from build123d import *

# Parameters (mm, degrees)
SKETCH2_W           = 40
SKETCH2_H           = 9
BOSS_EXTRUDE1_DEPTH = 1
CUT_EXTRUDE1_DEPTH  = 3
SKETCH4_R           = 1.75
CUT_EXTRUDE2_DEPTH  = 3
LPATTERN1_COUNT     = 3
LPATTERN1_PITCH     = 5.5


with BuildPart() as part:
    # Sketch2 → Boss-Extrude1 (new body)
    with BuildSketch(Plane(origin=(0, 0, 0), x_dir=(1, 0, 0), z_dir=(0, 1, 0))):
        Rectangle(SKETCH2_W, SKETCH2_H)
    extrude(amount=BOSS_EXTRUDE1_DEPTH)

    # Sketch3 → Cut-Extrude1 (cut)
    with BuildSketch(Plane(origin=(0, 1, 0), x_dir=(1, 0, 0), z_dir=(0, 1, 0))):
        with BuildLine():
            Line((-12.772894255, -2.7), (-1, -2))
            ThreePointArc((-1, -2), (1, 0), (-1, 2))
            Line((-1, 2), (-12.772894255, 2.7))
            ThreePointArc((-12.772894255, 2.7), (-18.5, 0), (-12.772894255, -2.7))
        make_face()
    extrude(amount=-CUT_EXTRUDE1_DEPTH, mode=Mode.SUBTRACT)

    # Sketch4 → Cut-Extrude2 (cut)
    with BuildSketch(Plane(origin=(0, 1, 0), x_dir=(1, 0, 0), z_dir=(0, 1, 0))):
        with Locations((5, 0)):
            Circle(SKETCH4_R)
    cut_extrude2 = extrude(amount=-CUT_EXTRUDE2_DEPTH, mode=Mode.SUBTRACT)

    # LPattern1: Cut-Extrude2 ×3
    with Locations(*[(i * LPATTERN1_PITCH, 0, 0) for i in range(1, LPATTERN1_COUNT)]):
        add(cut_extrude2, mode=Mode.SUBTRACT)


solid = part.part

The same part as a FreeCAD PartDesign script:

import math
import FreeCAD as App
import Part
import Sketcher
from FreeCAD import Vector


def add_polygon(sketch, points):
    """Adds a closed chain of lines whose ends are joined by coincident constraints."""
    first, n = sketch.GeometryCount, len(points)
    for a, b in zip(points, points[1:] + points[:1]):
        sketch.addGeometry(Part.LineSegment(App.Vector(*a, 0), App.Vector(*b, 0)), False)
    for i in range(n):
        sketch.addConstraint(Sketcher.Constraint("Coincident", first + i, 2, first + (i + 1) % n, 1))

doc = App.newDocument("Part")
body = doc.addObject("PartDesign::Body", "Body")

# Sketch on XZ plane
sketch1 = body.newObject("Sketcher::SketchObject", "Sketch")
sketch1.AttachmentSupport = (doc.getObject("XZ_Plane"), [""])
sketch1.MapMode = "FlatFace"
add_polygon(sketch1, [(-20, -4), (-20, 4), (20, 4), (20, -4)])  # lines 0-3
sketch1.addConstraint(Sketcher.Constraint("Vertical", 0))
sketch1.addConstraint(Sketcher.Constraint("Horizontal", 1))
sketch1.addConstraint(Sketcher.Constraint("Vertical", 2))
sketch1.addConstraint(Sketcher.Constraint("Horizontal", 3))
sketch1.addConstraint(Sketcher.Constraint("Symmetric", 0, 2, 2, 2, -1, 1))
sketch1.addConstraint(Sketcher.Constraint("DistanceX", 1, 1, 1, 2, 40.0))
sketch1.addConstraint(Sketcher.Constraint("DistanceY", 0, 1, 0, 2, 9.0))
pad1 = body.newObject("PartDesign::Pad", "Pad")
pad1.Profile = sketch1
pad1.Length = 1
pad1.Reversed = True

# Sketch on XZ plane
sketch2 = body.newObject("Sketcher::SketchObject", "Sketch001")
sketch2.AttachmentSupport = (doc.getObject("XZ_Plane"), [""])
sketch2.MapMode = "FlatFace"
sketch2.AttachmentOffset = App.Placement(Vector(0, 0, -1), App.Rotation())
sketch2.addGeometry(Part.LineSegment(Vector(-12.8, 2.7, 0), Vector(-1, 2, 0)), False)
sketch2.addGeometry(Part.ArcOfCircle(Part.Circle(Vector(-1, 0, 0), Vector(0, 0, 1), 2), math.radians(-90), math.radians(90)), False)
sketch2.addGeometry(Part.LineSegment(Vector(-1, -2, 0), Vector(-12.8, -2.7, 0)), False)
sketch2.addGeometry(Part.ArcOfCircle(Part.Circle(Vector(-15, 0, 0), Vector(0, 0, 1), 3.5), math.radians(50), math.radians(310)), False)
sketch2.addConstraint(Sketcher.Constraint("Coincident", 0, 2, 1, 2))
sketch2.addConstraint(Sketcher.Constraint("Coincident", 1, 1, 2, 1))
sketch2.addConstraint(Sketcher.Constraint("Coincident", 2, 2, 3, 2))
sketch2.addConstraint(Sketcher.Constraint("Coincident", 3, 1, 0, 1))
sketch2.addConstraint(Sketcher.Constraint("Symmetric", 0, 2, 1, 1, -1))
sketch2.addConstraint(Sketcher.Constraint("Symmetric", 2, 2, 3, 1, -1))
sketch2.addConstraint(Sketcher.Constraint("Vertical", 1, 3, 0, 2))
sketch2.addConstraint(Sketcher.Constraint("Radius", 1, 2.0))
sketch2.addConstraint(Sketcher.Constraint("Radius", 3, 3.5))
sketch2.addConstraint(Sketcher.Constraint("DistanceX", 1, 3, -1, 1, 1.0))
sketch2.addConstraint(Sketcher.Constraint("DistanceX", 3, 3, -1, 1, 15.0))
sketch2.addConstraint(Sketcher.Constraint("DistanceY", 2, 2, -1, 1, 2.7))
pocket1 = body.newObject("PartDesign::Pocket", "Pocket")
pocket1.Profile = sketch2
pocket1.Length = 3
pocket1.Reversed = True

# Sketch on XZ plane
sketch3 = body.newObject("Sketcher::SketchObject", "Sketch002")
sketch3.AttachmentSupport = (doc.getObject("XZ_Plane"), [""])
sketch3.MapMode = "FlatFace"
sketch3.AttachmentOffset = App.Placement(Vector(0, 0, -1), App.Rotation())
sketch3.addGeometry(Part.Circle(Vector(5, 0, 0), Vector(0, 0, 1), 1.8), False)
sketch3.addConstraint(Sketcher.Constraint("PointOnObject", 0, 3, -1))
sketch3.addConstraint(Sketcher.Constraint("Diameter", 0, 3.5))
sketch3.addConstraint(Sketcher.Constraint("DistanceX", -1, 1, 0, 3, 5.0))
pocket2 = body.newObject("PartDesign::Pocket", "Pocket001")
pocket2.Profile = sketch3
pocket2.Length = 3
pocket2.Reversed = True
doc.recompute()

linearpattern = body.newObject("PartDesign::LinearPattern", "LinearPattern")
linearpattern.Originals = [pocket2]
linearpattern.Direction = (doc.getObject("X_Axis"), [""])
linearpattern.Mode = "offset"
linearpattern.Offset = 5.5
linearpattern.Occurrences = 3
body.Tip = linearpattern

doc.recompute()
